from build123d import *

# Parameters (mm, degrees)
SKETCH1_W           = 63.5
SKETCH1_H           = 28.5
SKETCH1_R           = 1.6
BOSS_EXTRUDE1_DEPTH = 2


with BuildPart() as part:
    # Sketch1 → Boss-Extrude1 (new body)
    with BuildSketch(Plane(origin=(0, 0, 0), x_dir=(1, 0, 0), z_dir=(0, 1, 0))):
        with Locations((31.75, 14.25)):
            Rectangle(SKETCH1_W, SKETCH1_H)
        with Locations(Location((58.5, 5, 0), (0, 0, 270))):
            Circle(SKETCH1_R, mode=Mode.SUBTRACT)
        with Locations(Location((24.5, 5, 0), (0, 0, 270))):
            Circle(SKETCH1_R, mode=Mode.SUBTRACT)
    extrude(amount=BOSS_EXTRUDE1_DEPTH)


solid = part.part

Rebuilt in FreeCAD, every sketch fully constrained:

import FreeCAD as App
import Part
import Sketcher
from FreeCAD import Vector

doc = App.newDocument("Part")
body = doc.addObject("PartDesign::Body", "Body")

# Sketch on XZ plane
sketch1 = body.newObject("Sketcher::SketchObject", "Sketch")
sketch1.AttachmentSupport = (doc.getObject("XZ_Plane"), [""])
sketch1.MapMode = "FlatFace"
sketch1.addGeometry([
    Part.LineSegment(Vector(0, -28.5, 0), Vector(0, 0, 0)),  # 0
    Part.LineSegment(Vector(0, 0, 0), Vector(63.5, 0, 0)),  # 1
    Part.LineSegment(Vector(63.5, 0, 0), Vector(63.5, -28.5, 0)),  # 2
    Part.LineSegment(Vector(63.5, -28.5, 0), Vector(0, -28.5, 0)),  # 3
    Part.Circle(Vector(24.5, -5, 0), Vector(0, 0, 1), 1.6),  # 4
    Part.Circle(Vector(58.5, -5, 0), Vector(0, 0, 1), 1.6),  # 5
], False)
sketch1.addConstraint([
    Sketcher.Constraint("Coincident", 0, 2, 1, 1),
    Sketcher.Constraint("Coincident", 1, 2, 2, 1),
    Sketcher.Constraint("Coincident", 2, 2, 3, 1),
    Sketcher.Constraint("Coincident", 3, 2, 0, 1),
    Sketcher.Constraint("Vertical", 0),
    Sketcher.Constraint("Horizontal", 1),
    Sketcher.Constraint("Vertical", 2),
    Sketcher.Constraint("Horizontal", 3),
    Sketcher.Constraint("Coincident", 0, 2, -1, 1),
    Sketcher.Constraint("Equal", 4, 5),
    Sketcher.Constraint("Horizontal", 4, 3, 5, 3),
    Sketcher.Constraint("Diameter", 4, 3.2),
    Sketcher.Constraint("DistanceX", 1, 1, 1, 2, 63.5),
    Sketcher.Constraint("DistanceY", 0, 1, 0, 2, 28.5),
    Sketcher.Constraint("DistanceY", 4, 3, -1, 1, 5.0),
    Sketcher.Constraint("DistanceX", 4, 3, 5, 3, 34.0),
    Sketcher.Constraint("DistanceX", 5, 3, 1, 2, 5.0),
])
pad1 = body.newObject("PartDesign::Pad", "Pad")
pad1.Profile = sketch1
pad1.Length = 2
pad1.Reversed = True

doc.recompute()
